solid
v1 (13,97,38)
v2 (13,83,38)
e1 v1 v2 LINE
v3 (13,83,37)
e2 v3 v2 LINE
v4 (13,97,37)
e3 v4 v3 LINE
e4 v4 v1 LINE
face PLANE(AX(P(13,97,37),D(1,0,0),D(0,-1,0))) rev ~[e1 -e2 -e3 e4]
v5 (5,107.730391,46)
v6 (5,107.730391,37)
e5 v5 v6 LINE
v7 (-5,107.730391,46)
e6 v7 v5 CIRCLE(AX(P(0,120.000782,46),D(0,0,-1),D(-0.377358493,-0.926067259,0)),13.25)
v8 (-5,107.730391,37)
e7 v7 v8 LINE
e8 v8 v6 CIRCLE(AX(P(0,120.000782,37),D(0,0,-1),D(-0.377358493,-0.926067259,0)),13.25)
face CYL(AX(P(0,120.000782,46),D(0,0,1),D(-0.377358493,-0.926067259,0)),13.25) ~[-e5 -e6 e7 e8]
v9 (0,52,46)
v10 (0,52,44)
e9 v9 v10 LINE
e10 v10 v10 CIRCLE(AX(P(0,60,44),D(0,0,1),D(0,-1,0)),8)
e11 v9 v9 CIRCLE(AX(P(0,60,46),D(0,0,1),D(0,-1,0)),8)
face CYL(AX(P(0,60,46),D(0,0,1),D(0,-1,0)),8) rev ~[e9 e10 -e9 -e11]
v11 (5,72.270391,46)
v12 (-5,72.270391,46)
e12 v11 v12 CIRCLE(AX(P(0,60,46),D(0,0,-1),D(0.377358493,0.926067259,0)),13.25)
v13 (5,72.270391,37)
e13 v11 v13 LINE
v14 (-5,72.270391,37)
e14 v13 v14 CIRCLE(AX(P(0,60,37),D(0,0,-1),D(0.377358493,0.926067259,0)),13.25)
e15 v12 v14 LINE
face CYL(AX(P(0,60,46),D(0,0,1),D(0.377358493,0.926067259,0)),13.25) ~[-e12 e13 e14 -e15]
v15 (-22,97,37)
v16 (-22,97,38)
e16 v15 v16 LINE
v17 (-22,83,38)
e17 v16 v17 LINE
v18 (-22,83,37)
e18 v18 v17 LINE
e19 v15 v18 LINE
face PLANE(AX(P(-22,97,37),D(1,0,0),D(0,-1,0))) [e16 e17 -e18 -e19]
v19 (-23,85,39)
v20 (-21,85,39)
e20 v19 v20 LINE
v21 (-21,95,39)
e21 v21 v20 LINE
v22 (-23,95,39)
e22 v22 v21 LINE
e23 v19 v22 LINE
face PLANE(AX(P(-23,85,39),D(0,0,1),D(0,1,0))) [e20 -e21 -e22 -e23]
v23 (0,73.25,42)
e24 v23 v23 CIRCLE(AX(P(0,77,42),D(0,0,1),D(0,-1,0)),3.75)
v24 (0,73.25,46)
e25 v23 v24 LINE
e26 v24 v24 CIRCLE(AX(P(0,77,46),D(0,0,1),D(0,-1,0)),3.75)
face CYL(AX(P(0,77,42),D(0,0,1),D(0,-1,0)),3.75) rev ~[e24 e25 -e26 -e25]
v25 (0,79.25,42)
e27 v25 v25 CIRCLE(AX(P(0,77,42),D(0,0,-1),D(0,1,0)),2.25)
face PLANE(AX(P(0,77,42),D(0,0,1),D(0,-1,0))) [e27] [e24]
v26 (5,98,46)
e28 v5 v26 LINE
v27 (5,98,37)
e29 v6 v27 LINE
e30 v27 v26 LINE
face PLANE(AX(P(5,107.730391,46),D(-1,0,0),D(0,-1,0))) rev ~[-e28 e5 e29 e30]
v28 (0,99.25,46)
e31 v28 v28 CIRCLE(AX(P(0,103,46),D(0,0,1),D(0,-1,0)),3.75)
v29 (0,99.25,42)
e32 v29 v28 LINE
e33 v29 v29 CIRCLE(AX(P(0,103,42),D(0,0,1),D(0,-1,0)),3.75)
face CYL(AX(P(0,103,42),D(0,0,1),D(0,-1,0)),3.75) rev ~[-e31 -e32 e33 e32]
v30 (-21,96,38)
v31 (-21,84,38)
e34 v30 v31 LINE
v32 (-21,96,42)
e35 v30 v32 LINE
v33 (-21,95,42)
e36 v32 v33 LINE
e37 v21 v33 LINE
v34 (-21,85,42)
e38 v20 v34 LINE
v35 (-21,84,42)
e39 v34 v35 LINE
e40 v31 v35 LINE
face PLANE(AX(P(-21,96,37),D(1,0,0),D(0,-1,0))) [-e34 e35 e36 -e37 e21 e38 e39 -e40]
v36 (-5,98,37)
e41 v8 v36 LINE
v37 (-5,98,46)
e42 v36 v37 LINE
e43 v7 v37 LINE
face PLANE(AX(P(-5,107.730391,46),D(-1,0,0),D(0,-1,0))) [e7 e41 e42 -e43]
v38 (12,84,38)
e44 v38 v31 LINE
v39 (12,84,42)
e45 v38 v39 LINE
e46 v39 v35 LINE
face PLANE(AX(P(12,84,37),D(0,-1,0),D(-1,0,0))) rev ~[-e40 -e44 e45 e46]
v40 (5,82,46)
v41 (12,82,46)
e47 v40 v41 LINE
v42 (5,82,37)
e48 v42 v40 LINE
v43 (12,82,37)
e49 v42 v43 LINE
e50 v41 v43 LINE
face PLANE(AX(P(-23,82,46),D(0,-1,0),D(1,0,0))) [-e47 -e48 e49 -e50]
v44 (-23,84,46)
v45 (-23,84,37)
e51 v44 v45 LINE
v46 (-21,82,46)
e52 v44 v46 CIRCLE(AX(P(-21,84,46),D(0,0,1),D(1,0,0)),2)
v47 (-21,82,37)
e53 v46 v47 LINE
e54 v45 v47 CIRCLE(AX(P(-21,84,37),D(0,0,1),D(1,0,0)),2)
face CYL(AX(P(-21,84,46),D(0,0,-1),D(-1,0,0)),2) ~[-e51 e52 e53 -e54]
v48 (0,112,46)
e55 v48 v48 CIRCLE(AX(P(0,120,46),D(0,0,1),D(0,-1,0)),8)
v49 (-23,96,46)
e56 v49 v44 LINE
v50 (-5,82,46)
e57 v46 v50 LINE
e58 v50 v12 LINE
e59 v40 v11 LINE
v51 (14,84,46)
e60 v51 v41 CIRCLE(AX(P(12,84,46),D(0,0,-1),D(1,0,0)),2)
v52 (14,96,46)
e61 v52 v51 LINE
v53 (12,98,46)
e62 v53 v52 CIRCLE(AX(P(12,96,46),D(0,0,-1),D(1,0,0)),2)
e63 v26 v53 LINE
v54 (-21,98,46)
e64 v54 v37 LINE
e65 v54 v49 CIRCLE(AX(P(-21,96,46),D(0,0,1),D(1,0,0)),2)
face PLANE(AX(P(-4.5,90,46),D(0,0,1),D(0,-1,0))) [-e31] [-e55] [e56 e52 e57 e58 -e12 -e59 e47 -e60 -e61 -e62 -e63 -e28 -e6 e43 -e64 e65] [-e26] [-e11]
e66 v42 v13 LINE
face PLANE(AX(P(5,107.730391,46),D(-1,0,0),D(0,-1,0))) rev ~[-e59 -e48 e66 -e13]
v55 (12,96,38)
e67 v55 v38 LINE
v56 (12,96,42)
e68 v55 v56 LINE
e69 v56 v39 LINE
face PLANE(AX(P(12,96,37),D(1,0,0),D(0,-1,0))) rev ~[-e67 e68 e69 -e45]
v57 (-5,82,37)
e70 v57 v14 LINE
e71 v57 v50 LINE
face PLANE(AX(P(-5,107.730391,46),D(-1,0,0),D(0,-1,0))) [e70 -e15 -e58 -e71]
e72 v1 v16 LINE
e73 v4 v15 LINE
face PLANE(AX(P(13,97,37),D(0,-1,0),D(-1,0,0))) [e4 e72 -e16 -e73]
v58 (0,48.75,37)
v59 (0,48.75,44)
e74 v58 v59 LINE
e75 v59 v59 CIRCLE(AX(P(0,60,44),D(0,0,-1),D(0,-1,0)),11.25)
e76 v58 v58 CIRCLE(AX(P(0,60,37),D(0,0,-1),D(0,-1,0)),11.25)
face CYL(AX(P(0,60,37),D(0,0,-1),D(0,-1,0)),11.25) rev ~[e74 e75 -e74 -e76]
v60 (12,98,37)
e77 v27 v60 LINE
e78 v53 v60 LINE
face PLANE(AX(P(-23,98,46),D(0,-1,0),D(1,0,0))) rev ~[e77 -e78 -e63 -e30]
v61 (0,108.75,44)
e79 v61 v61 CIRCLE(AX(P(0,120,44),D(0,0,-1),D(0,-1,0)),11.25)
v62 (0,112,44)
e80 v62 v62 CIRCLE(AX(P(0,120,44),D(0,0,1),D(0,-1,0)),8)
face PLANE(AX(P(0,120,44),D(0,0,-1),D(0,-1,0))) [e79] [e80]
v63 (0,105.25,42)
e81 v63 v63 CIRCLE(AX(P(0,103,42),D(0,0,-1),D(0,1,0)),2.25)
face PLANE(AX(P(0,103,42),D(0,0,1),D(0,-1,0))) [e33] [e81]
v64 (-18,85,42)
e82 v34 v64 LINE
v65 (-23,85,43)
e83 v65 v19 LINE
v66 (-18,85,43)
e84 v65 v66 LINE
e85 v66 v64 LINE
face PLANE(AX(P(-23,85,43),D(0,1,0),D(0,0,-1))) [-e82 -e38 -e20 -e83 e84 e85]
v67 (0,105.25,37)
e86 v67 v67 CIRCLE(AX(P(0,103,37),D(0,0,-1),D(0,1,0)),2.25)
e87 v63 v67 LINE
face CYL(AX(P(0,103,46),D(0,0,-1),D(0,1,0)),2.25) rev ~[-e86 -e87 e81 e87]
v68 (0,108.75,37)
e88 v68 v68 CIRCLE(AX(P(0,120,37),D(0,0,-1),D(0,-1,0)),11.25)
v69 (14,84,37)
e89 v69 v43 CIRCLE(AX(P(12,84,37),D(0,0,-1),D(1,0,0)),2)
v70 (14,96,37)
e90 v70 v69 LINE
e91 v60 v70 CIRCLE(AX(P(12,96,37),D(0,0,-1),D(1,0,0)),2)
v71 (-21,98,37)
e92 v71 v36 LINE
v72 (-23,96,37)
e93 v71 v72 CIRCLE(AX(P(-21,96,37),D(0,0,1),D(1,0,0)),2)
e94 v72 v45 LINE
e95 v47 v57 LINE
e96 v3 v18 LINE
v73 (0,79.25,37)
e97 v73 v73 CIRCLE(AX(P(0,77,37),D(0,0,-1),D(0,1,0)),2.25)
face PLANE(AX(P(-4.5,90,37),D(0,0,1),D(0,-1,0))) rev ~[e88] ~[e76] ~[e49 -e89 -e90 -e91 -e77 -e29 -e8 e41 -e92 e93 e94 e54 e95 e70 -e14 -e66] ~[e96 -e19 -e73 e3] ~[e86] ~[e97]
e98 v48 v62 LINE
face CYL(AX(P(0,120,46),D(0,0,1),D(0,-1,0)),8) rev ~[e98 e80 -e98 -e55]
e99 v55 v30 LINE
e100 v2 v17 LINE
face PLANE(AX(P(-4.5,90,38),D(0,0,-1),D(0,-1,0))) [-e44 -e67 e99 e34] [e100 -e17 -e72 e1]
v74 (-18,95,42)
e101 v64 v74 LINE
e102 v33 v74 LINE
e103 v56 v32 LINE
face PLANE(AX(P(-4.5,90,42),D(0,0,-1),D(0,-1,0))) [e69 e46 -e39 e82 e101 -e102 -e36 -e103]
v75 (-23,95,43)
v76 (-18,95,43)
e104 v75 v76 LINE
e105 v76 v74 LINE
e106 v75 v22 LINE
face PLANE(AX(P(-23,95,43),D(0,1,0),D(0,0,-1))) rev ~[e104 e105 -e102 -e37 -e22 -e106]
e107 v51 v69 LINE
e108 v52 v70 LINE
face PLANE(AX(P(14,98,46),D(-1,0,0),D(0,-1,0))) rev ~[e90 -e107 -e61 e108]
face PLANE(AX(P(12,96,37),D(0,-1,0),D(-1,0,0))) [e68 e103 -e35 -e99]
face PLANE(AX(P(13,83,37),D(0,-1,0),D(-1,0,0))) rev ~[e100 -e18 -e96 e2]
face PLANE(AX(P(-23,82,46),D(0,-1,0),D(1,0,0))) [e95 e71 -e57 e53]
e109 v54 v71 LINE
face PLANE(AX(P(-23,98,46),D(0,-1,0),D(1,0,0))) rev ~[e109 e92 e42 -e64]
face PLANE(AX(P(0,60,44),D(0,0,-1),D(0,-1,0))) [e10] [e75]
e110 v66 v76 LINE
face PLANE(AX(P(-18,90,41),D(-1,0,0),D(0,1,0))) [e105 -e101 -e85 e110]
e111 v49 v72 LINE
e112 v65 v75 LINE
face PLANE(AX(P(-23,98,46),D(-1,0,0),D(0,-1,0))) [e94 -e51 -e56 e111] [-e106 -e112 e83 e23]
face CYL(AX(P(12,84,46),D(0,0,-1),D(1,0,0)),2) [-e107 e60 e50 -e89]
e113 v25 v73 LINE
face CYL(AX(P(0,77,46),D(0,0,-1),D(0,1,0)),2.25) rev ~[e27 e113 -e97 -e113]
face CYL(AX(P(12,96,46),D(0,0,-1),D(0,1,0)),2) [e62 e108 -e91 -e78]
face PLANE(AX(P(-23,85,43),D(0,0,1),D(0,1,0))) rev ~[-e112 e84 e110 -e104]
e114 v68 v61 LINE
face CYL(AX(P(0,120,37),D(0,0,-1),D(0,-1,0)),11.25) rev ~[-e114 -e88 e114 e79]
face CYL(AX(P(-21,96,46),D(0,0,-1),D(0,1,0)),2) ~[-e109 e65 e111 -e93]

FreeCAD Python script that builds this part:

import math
import FreeCAD as App
import Part
import Sketcher

V = App.Vector


def edges_at(feature, points):
    """Names of the edges that pass closest to the given points."""
    edges = feature.Shape.Edges
    near = lambda p: min(range(len(edges)), key=lambda i: edges[i].distToShape(Part.Vertex(*p))[0])
    return sorted({f"Edge{near(p) + 1}" for p in points})

doc = App.newDocument("Part")
params = doc.addObject("Spreadsheet::Sheet", "Params")
for row, (alias, value) in enumerate([
    ("sketch1_radius", "13.25 mm"),
    ("sketch1_width", "35.46 mm"),
    ("pad1_length", "9 mm"),
    ("sketch2_diameter", "22.5 mm"),
    ("pocket1_length", "7 mm"),
    ("sketch3_diameter", "16 mm"),
    ("pocket2_length", "5 mm"),
    ("sketch4_width", "16 mm"),
    ("sketch4_height", "37 mm"),
    ("pad2_length", "9 mm"),
    ("sketch5_width", "14 mm"),
    ("sketch5_height", "35 mm"),
    ("pocket3_length", "1 mm"),
    ("sketch6_width", "12 mm"),
    ("sketch6_height", "33 mm"),
    ("pocket4_length", "5 mm"),
    ("sketch7_width", "10 mm"),
    ("sketch7_height", "4 mm"),
    ("pocket5_length", "5 mm"),
    ("sketch8_diameter", "4.5 mm"),
    ("hole_diameter", "4.5 mm"),
    ("hole_depth", "25 mm"),
    ("hole_cbore_diameter", "7.5 mm"),
    ("hole_cbore_depth", "4 mm"),
    ("fillet_radius", "2 mm"),
], start=1):
    params.set(f"A{row}", alias)
    params.set(f"B{row}", "=" + value)
    params.setAlias(f"B{row}", alias)

body = doc.addObject("PartDesign::Body", "Body")

# Sketch on XY plane
sketch1 = body.newObject("Sketcher::SketchObject", "Sketch")
sketch1.AttachmentSupport = (doc.getObject("XY_Plane"), [""])
sketch1.MapMode = "FlatFace"
sketch1.addGeometry(Part.ArcOfCircle(Part.Circle(V(0, 0, 0), V(0, 0, 1), 13), math.radians(22), math.radians(338)), False)
sketch1.addGeometry(Part.LineSegment(V(12, -5, 0), V(48, -5, 0)), False)
sketch1.addGeometry(Part.ArcOfCircle(Part.Circle(V(60, 0, 0), V(0, 0, 1), 13), math.radians(-158), math.radians(158)), False)
sketch1.addGeometry(Part.LineSegment(V(48, 5, 0), V(12, 5, 0)), False)
sketch1.addConstraint(Sketcher.Constraint("Coincident", 0, 2, 1, 1))
sketch1.addConstraint(Sketcher.Constraint("Coincident", 1, 2, 2, 1))
sketch1.addConstraint(Sketcher.Constraint("Coincident", 2, 2, 3, 1))
sketch1.addConstraint(Sketcher.Constraint("Coincident", 3, 2, 0, 1))
sketch1.addConstraint(Sketcher.Constraint("Horizontal", 1))
sketch1.addConstraint(Sketcher.Constraint("Horizontal", 3))
sketch1.addConstraint(Sketcher.Constraint("Equal", 0, 2))
sketch1.addConstraint(Sketcher.Constraint("Symmetric", 1, 2, 2, 2, -1))
sketch1.addConstraint(Sketcher.Constraint("PointOnObject", 0, 3, -1))
sketch1.addConstraint(Sketcher.Constraint("Radius", 0, 13.25))
sketch1.addConstraint(Sketcher.Constraint("DistanceX", -1, 1, 2, 3, 60.0))
sketch1.addConstraint(Sketcher.Constraint("DistanceY", 0, 2, -1, 1, 5.0))
sketch1.addConstraint(Sketcher.Constraint("DistanceX", 1, 1, 1, 2, 35.46))
sketch1.setExpression("Constraints[9]", "Params.sketch1_radius")
sketch1.setExpression("Constraints[12]", "Params.sketch1_width")
pad1 = body.newObject("PartDesign::Pad", "Pad")
pad1.Profile = sketch1
pad1.setExpression("Length", "Params.pad1_length")

# Sketch on XY plane
sketch2 = body.newObject("Sketcher::SketchObject", "Sketch001")
sketch2.AttachmentSupport = (doc.getObject("XY_Plane"), [""])
sketch2.MapMode = "FlatFace"
sketch2.AttachmentOffset = App.Placement(V(0, 0, 9), App.Rotation())
sketch2.addGeometry(Part.Circle(V(0, 0, 0), V(0, 0, 1), 11), False)
sketch2.addGeometry(Part.Circle(V(60, 0, 0), V(0, 0, 1), 11), False)
sketch2.addConstraint(Sketcher.Constraint("Coincident", 0, 3, -1, 1))
sketch2.addConstraint(Sketcher.Constraint("Equal", 0, 1))
sketch2.addConstraint(Sketcher.Constraint("PointOnObject", 1, 3, -1))
sketch2.addConstraint(Sketcher.Constraint("Diameter", 0, 22.5))
sketch2.addConstraint(Sketcher.Constraint("DistanceX", -1, 1, 1, 3, 60.0))
sketch2.setExpression("Constraints[3]", "Params.sketch2_diameter")
pocket1 = body.newObject("PartDesign::Pocket", "Pocket")
pocket1.Profile = sketch2
pocket1.setExpression("Length", "Params.pocket1_length")

# Sketch on XY plane
sketch3 = body.newObject("Sketcher::SketchObject", "Sketch002")
sketch3.AttachmentSupport = (doc.getObject("XY_Plane"), [""])
sketch3.MapMode = "FlatFace"
sketch3.addGeometry(Part.Circle(V(0, 0, 0), V(0, 0, 1), 8), False)
sketch3.addGeometry(Part.Circle(V(60, 0, 0), V(0, 0, 1), 8), False)
sketch3.addConstraint(Sketcher.Constraint("Coincident", 0, 3, -1, 1))
sketch3.addConstraint(Sketcher.Constraint("Equal", 0, 1))
sketch3.addConstraint(Sketcher.Constraint("PointOnObject", 1, 3, -1))
sketch3.addConstraint(Sketcher.Constraint("Diameter", 0, 16.0))
sketch3.addConstraint(Sketcher.Constraint("DistanceX", -1, 1, 1, 3, 60.0))
sketch3.setExpression("Constraints[3]", "Params.sketch3_diameter")
pocket2 = body.newObject("PartDesign::Pocket", "Pocket001")
pocket2.Profile = sketch3
pocket2.setExpression("Length", "Params.pocket2_length")
pocket2.Reversed = True

# Sketch on XY plane
sketch4 = body.newObject("Sketcher::SketchObject", "Sketch003")
sketch4.AttachmentSupport = (doc.getObject("XY_Plane"), [""])
sketch4.MapMode = "FlatFace"
sketch4.addGeometry(Part.LineSegment(V(22, -14, 0), V(22, 23, 0)), False)
sketch4.addGeometry(Part.LineSegment(V(22, 23, 0), V(38, 23, 0)), False)
sketch4.addGeometry(Part.LineSegment(V(38, 23, 0), V(38, -14, 0)), False)
sketch4.addGeometry(Part.LineSegment(V(38, -14, 0), V(22, -14, 0)), False)
sketch4.addConstraint(Sketcher.Constraint("Coincident", 0, 2, 1, 1))
sketch4.addConstraint(Sketcher.Constraint("Coincident", 1, 2, 2, 1))
sketch4.addConstraint(Sketcher.Constraint("Coincident", 2, 2, 3, 1))
sketch4.addConstraint(Sketcher.Constraint("Coincident", 3, 2, 0, 1))
sketch4.addConstraint(Sketcher.Constraint("Vertical", 0))
sketch4.addConstraint(Sketcher.Constraint("Horizontal", 1))
sketch4.addConstraint(Sketcher.Constraint("Vertical", 2))
sketch4.addConstraint(Sketcher.Constraint("Horizontal", 3))
sketch4.addConstraint(Sketcher.Constraint("DistanceX", 1, 1, 1, 2, 16.0))
sketch4.addConstraint(Sketcher.Constraint("DistanceY", 0, 1, 0, 2, 37.0))
sketch4.addConstraint(Sketcher.Constraint("DistanceX", -1, 1, 0, 2, 22.0))
sketch4.addConstraint(Sketcher.Constraint("DistanceY", -1, 1, 0, 2, 23.0))
sketch4.setExpression("Constraints[8]", "Params.sketch4_width")
sketch4.setExpression("Constraints[9]", "Params.sketch4_height")
pad2 = body.newObject("PartDesign::Pad", "Pad001")
pad2.Profile = sketch4
pad2.setExpression("Length", "Params.pad2_length")

# Sketch on XY plane
sketch5 = body.newObject("Sketcher::SketchObject", "Sketch004")
sketch5.AttachmentSupport = (doc.getObject("XY_Plane"), [""])
sketch5.MapMode = "FlatFace"
sketch5.AttachmentOffset = App.Placement(V(0, 0, 9), App.Rotation())
sketch5.addGeometry(Part.LineSegment(V(23, 22, 0), V(23, -13, 0)), False)
sketch5.addGeometry(Part.LineSegment(V(23, -13, 0), V(37, -13, 0)), False)
sketch5.addGeometry(Part.LineSegment(V(37, -13, 0), V(37, 22, 0)), False)
sketch5.addGeometry(Part.LineSegment(V(37, 22, 0), V(23, 22, 0)), False)
sketch5.addConstraint(Sketcher.Constraint("Coincident", 0, 2, 1, 1))
sketch5.addConstraint(Sketcher.Constraint("Coincident", 1, 2, 2, 1))
sketch5.addConstraint(Sketcher.Constraint("Coincident", 2, 2, 3, 1))
sketch5.addConstraint(Sketcher.Constraint("Coincident", 3, 2, 0, 1))
sketch5.addConstraint(Sketcher.Constraint("Vertical", 0))
sketch5.addConstraint(Sketcher.Constraint("Horizontal", 1))
sketch5.addConstraint(Sketcher.Constraint("Vertical", 2))
sketch5.addConstraint(Sketcher.Constraint("Horizontal", 3))
sketch5.addConstraint(Sketcher.Constraint("DistanceX", 1, 1, 1, 2, 14.0))
sketch5.addConstraint(Sketcher.Constraint("DistanceY", 0, 2, 0, 1, 35.0))
sketch5.addConstraint(Sketcher.Constraint("DistanceX", -1, 1, 0, 2, 23.0))
sketch5.addConstraint(Sketcher.Constraint("DistanceY", 0, 2, -1, 1, 13.0))
sketch5.setExpression("Constraints[8]", "Params.sketch5_width")
sketch5.setExpression("Constraints[9]", "Params.sketch5_height")
pocket3 = body.newObject("PartDesign::Pocket", "Pocket002")
pocket3.Profile = sketch5
pocket3.setExpression("Length", "Params.pocket3_length")

# Sketch on XY plane
sketch6 = body.newObject("Sketcher::SketchObject", "Sketch005")
sketch6.AttachmentSupport = (doc.getObject("XY_Plane"), [""])
sketch6.MapMode = "FlatFace"
sketch6.AttachmentOffset = App.Placement(V(0, 0, 9), App.Rotation())
sketch6.addGeometry(Part.LineSegment(V(24, 21, 0), V(24, -12, 0)), False)
sketch6.addGeometry(Part.LineSegment(V(24, -12, 0), V(36, -12, 0)), False)
sketch6.addGeometry(Part.LineSegment(V(36, -12, 0), V(36, 21, 0)), False)
sketch6.addGeometry(Part.LineSegment(V(36, 21, 0), V(24, 21, 0)), False)
sketch6.addConstraint(Sketcher.Constraint("Coincident", 0, 2, 1, 1))
sketch6.addConstraint(Sketcher.Constraint("Coincident", 1, 2, 2, 1))
sketch6.addConstraint(Sketcher.Constraint("Coincident", 2, 2, 3, 1))
sketch6.addConstraint(Sketcher.Constraint("Coincident", 3, 2, 0, 1))
sketch6.addConstraint(Sketcher.Constraint("Vertical", 0))
sketch6.addConstraint(Sketcher.Constraint("Horizontal", 1))
sketch6.addConstraint(Sketcher.Constraint("Vertical", 2))
sketch6.addConstraint(Sketcher.Constraint("Horizontal", 3))
sketch6.addConstraint(Sketcher.Constraint("DistanceX", 1, 1, 1, 2, 12.0))
sketch6.addConstraint(Sketcher.Constraint("DistanceY", 0, 2, 0, 1, 33.0))
sketch6.addConstraint(Sketcher.Constraint("DistanceX", -1, 1, 0, 2, 24.0))
sketch6.addConstraint(Sketcher.Constraint("DistanceY", 0, 2, -1, 1, 12.0))
sketch6.setExpression("Constraints[8]", "Params.sketch6_width")
sketch6.setExpression("Constraints[9]", "Params.sketch6_height")
pocket4 = body.newObject("PartDesign::Pocket", "Pocket003")
pocket4.Profile = sketch6
pocket4.setExpression("Length", "Params.pocket4_length")

# Sketch on XZ plane
sketch7 = body.newObject("Sketcher::SketchObject", "Sketch006")
sketch7.AttachmentSupport = (doc.getObject("XZ_Plane"), [""])
sketch7.MapMode = "FlatFace"
sketch7.AttachmentOffset = App.Placement(V(0, 0, -23), App.Rotation())
sketch7.addGeometry(Part.LineSegment(V(35, 7, 0), V(35, 3, 0)), False)
sketch7.addGeometry(Part.LineSegment(V(35, 3, 0), V(25, 3, 0)), False)
sketch7.addGeometry(Part.LineSegment(V(25, 3, 0), V(25, 7, 0)), False)
sketch7.addGeometry(Part.LineSegment(V(25, 7, 0), V(35, 7, 0)), False)
sketch7.addConstraint(Sketcher.Constraint("Coincident", 0, 2, 1, 1))
sketch7.addConstraint(Sketcher.Constraint("Coincident", 1, 2, 2, 1))
sketch7.addConstraint(Sketcher.Constraint("Coincident", 2, 2, 3, 1))
sketch7.addConstraint(Sketcher.Constraint("Coincident", 3, 2, 0, 1))
sketch7.addConstraint(Sketcher.Constraint("Vertical", 0))
sketch7.addConstraint(Sketcher.Constraint("Horizontal", 1))
sketch7.addConstraint(Sketcher.Constraint("Vertical", 2))
sketch7.addConstraint(Sketcher.Constraint("Horizontal", 3))
sketch7.addConstraint(Sketcher.Constraint("DistanceX", 1, 2, 1, 1, 10.0))
sketch7.addConstraint(Sketcher.Constraint("DistanceY", 0, 2, 0, 1, 4.0))
sketch7.addConstraint(Sketcher.Constraint("DistanceX", -1, 1, 0, 2, 35.0))
sketch7.addConstraint(Sketcher.Constraint("DistanceY", -1, 1, 0, 2, 3.0))
sketch7.setExpression("Constraints[8]", "Params.sketch7_width")
sketch7.setExpression("Constraints[9]", "Params.sketch7_height")
pocket5 = body.newObject("PartDesign::Pocket", "Pocket004")
pocket5.Profile = sketch7
pocket5.setExpression("Length", "Params.pocket5_length")
pocket5.Reversed = True

# Sketch on XY plane
sketch8 = body.newObject("Sketcher::SketchObject", "Sketch007")
sketch8.AttachmentSupport = (doc.getObject("XY_Plane"), [""])
sketch8.MapMode = "FlatFace"
sketch8.addGeometry(Part.Circle(V(17, 0, 0), V(0, 0, 1), 2.2), False)
sketch8.addGeometry(Part.Circle(V(43, 0, 0), V(0, 0, 1), 2.2), False)
sketch8.addConstraint(Sketcher.Constraint("Equal", 0, 1))
sketch8.addConstraint(Sketcher.Constraint("PointOnObject", 0, 3, -1))
sketch8.addConstraint(Sketcher.Constraint("PointOnObject", 1, 3, -1))
sketch8.addConstraint(Sketcher.Constraint("Diameter", 0, 4.5))
sketch8.addConstraint(Sketcher.Constraint("DistanceX", -1, 1, 0, 3, 17.0))
sketch8.addConstraint(Sketcher.Constraint("DistanceX", -1, 1, 1, 3, 43.0))
sketch8.setExpression("Constraints[3]", "Params.sketch8_diameter")
doc.recompute()
hole = body.newObject("PartDesign::Hole", "Hole")
hole.Profile = sketch8
hole.ThreadType = "None"
hole.setExpression("Diameter", "Params.hole_diameter")
hole.DepthType = "Dimension"
hole.setExpression("Depth", "Params.hole_depth")
hole.DrillPoint = "Flat"
hole.HoleCutType = "Counterbore"
hole.setExpression("HoleCutDiameter", "Params.hole_cbore_diameter")
hole.setExpression("HoleCutDepth", "Params.hole_cbore_depth")
hole.Reversed = True
doc.recompute()

fillet = body.newObject("PartDesign::Fillet", "Fillet")
fillet.Base = (hole, edges_at(hole, [
    (38, 23, 4.5),
    (22, 23, 4.5),
    (22, -14, 4.5),
    (38, -14, 4.5),
]))
fillet.setExpression("Radius", "Params.fillet_radius")
body2 = doc.addObject("PartDesign::Body", "Body001")
doc.recompute()

body.Placement = App.Placement(V(0, 0, 0), App.Rotation(V(1, 0, 0), 180))
boolean = body2.newObject("PartDesign::Boolean", "Boolean")
boolean.Type = "Fuse"
boolean.addObjects([body])
body3 = doc.addObject("PartDesign::Body", "Body002")
doc.recompute()

body2.Placement = App.Placement(V(0, 120, 46), App.Rotation(V(0, 0, 1), 270))
boolean2 = body3.newObject("PartDesign::Boolean", "Boolean001")
boolean2.Type = "Fuse"
boolean2.addObjects([body2])

doc.recompute()
